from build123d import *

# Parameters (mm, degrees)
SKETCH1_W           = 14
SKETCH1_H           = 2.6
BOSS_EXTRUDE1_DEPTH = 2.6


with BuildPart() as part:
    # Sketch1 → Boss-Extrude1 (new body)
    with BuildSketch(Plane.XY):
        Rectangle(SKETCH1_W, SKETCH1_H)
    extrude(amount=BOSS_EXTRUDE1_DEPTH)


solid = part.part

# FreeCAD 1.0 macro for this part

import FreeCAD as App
import Part
import Sketcher


def add_polygon(sketch, points):
    """Adds a closed chain of lines whose ends are joined by coincident constraints."""
    first, n = sketch.GeometryCount, len(points)
    for a, b in zip(points, points[1:] + points[:1]):
        sketch.addGeometry(Part.LineSegment(App.Vector(*a, 0), App.Vector(*b, 0)), False)
    for i in range(n):
        sketch.addConstraint(Sketcher.Constraint("Coincident", first + i, 2, first + (i + 1) % n, 1))

doc = App.newDocument("Part")
body = doc.addObject("PartDesign::Body", "Body")

# Sketch on XY plane
sketch1 = body.newObject("Sketcher::SketchObject", "Sketch")
sketch1.AttachmentSupport = (doc.getObject("XY_Plane"), [""])
sketch1.MapMode = "FlatFace"
add_polygon(sketch1, [(-7, 1.3), (-7, -1.3), (7, -1.3), (7, 1.3)])  # lines 0-3
sketch1.addConstraint([
    Sketcher.Constraint("Vertical", 0),
    Sketcher.Constraint("Horizontal", 1),
    Sketcher.Constraint("Vertical", 2),
    Sketcher.Constraint("Horizontal", 3),
    Sketcher.Constraint("Symmetric", 0, 2, 2, 2, -1, 1),
    Sketcher.Constraint("DistanceX", 1, 1, 1, 2, 14.0),
    Sketcher.Constraint("DistanceY", 0, 2, 0, 1, 2.6),
])
pad1 = body.newObject("PartDesign::Pad", "Pad")
pad1.Profile = sketch1
pad1.Length = 2.6

doc.recompute()
